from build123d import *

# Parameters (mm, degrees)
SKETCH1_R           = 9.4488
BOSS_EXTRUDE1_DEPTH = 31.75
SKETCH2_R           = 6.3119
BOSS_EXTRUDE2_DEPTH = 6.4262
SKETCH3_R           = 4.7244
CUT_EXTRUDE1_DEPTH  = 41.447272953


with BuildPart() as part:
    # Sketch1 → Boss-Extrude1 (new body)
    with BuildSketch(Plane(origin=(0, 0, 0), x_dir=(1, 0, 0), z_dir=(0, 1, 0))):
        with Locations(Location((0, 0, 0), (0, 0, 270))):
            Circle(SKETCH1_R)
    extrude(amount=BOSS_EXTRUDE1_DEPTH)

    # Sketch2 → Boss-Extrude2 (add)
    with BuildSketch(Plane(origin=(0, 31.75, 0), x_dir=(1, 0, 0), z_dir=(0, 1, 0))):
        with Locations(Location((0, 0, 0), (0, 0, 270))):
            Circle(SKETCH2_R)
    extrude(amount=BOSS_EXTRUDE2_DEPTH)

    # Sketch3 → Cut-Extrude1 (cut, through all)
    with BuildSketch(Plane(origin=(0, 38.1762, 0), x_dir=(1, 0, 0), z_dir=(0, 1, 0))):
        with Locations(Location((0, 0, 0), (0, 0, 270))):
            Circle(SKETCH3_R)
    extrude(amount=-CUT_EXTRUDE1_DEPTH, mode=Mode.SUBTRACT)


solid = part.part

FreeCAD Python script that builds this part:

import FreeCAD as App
import Part
import Sketcher

V = App.Vector
Q = App.Units.Quantity

doc = App.newDocument("Part")
body = doc.addObject("PartDesign::Body", "Body")

sketch1 = doc.addObject("Sketcher::SketchObject", "Sketch")
body.addObject(sketch1)
sketch1.AttachmentSupport = (doc.XZ_Plane, [""])
sketch1.MapMode = "FlatFace"
sketch1.addGeometry(Part.Circle(V(0, 0, 0), V(0, 0, 1), 9.4488), False)
sketch1.addConstraint([
    Sketcher.Constraint("Coincident", 0, 3, -1, 1),
    Sketcher.Constraint("Diameter", 0, Q("0.744 in")),
])
pad1 = doc.addObject("PartDesign::Pad", "Pad")
body.addObject(pad1)
pad1.Profile = sketch1
pad1.Length = Q("1.25 in")
pad1.Reversed = True

sketch2 = doc.addObject("Sketcher::SketchObject", "Sketch001")
body.addObject(sketch2)
sketch2.AttachmentSupport = (doc.XZ_Plane, [""])
sketch2.MapMode = "FlatFace"
sketch2.AttachmentOffset = App.Placement(V(0, 0, -1.25 * 25.4), App.Rotation())
sketch2.addGeometry(Part.Circle(V(0, 0, 0), V(0, 0, 1), 6.3119), False)
sketch2.addConstraint([
    Sketcher.Constraint("Coincident", 0, 3, -1, 1),
    Sketcher.Constraint("Diameter", 0, Q("0.497 in")),
])
pad2 = doc.addObject("PartDesign::Pad", "Pad001")
body.addObject(pad2)
pad2.Profile = sketch2
pad2.Length = Q("0.253 in")
pad2.Reversed = True

sketch3 = doc.addObject("Sketcher::SketchObject", "Sketch002")
body.addObject(sketch3)
sketch3.AttachmentSupport = (doc.XZ_Plane, [""])
sketch3.MapMode = "FlatFace"
sketch3.AttachmentOffset = App.Placement(V(0, 0, -1.503 * 25.4), App.Rotation())
sketch3.addGeometry(Part.Circle(V(0, 0, 0), V(0, 0, 1), 4.7244), False)
sketch3.addConstraint([
    Sketcher.Constraint("Coincident", 0, 3, -1, 1),
    Sketcher.Constraint("Diameter", 0, Q("0.372 in")),
])
pocket1 = doc.addObject("PartDesign::Pocket", "Pocket")
body.addObject(pocket1)
pocket1.Profile = sketch3
pocket1.Type = "ThroughAll"
pocket1.Reversed = True

doc.recompute()
